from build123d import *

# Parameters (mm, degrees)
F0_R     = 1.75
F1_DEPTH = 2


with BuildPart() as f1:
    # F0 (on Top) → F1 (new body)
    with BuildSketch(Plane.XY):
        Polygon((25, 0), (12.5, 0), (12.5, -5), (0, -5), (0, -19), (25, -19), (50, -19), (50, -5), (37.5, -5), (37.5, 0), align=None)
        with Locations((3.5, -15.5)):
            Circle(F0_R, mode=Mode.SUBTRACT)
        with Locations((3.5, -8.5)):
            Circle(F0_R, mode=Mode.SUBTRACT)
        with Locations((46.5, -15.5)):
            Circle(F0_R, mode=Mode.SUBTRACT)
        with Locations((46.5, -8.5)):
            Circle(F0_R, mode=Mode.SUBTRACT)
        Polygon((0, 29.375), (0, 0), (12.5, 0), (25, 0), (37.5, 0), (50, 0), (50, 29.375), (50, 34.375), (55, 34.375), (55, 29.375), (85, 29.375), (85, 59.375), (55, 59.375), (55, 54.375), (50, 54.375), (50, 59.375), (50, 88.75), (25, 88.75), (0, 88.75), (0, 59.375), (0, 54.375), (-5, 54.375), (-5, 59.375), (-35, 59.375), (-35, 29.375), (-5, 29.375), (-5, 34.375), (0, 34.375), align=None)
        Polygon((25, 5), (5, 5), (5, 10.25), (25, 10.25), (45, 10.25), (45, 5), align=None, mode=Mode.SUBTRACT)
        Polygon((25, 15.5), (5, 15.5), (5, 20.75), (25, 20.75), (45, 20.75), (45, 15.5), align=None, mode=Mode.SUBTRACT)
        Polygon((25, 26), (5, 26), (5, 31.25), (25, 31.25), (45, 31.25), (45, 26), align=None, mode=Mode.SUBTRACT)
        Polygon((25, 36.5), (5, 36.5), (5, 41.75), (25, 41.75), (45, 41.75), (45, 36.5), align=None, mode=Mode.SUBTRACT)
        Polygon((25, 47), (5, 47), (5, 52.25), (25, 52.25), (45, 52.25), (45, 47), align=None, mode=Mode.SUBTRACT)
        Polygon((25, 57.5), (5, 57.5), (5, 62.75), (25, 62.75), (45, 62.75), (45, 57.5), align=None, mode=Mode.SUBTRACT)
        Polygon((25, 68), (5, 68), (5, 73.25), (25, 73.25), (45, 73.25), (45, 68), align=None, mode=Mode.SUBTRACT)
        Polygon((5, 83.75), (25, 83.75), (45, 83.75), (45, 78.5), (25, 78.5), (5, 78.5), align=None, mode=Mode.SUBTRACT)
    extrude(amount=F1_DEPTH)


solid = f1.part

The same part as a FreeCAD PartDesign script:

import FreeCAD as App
import Part
import Sketcher
from FreeCAD import Vector
Q = App.Units.Quantity


def add_polygon(sketch, points):
    """Adds a closed chain of lines whose ends are joined by coincident constraints."""
    first, n = sketch.GeometryCount, len(points)
    for a, b in zip(points, points[1:] + points[:1]):
        sketch.addGeometry(Part.LineSegment(App.Vector(*a, 0), App.Vector(*b, 0)), False)
    for i in range(n):
        sketch.addConstraint(Sketcher.Constraint("Coincident", first + i, 2, first + (i + 1) % n, 1))

doc = App.newDocument("Part")
body = doc.addObject("PartDesign::Body", "Body")

# Sketch on XY plane
sketch1 = doc.addObject("Sketcher::SketchObject", "Sketch")
body.addObject(sketch1)
sketch1.AttachmentSupport = (doc.XY_Plane, [""])
sketch1.MapMode = "FlatFace"
add_polygon(sketch1, [(12.5, 0), (12.5, -5), (0, -5), (0, -19), (50, -19), (50, -5), (37.5, -5), (37.5, 0), (50, 0), (50, 34.4), (55, 34.4), (55, 29.4), (85, 29.4), (85, 59.4), (55, 59.4), (55, 54.4), (50, 54.4), (50, 88.8), (0, 88.8), (0, 54.4), (-5, 54.4), (-5, 59.4), (-35, 59.4), (-35, 29.4), (-5, 29.4), (-5, 34.4), (0, 34.4), (0, 0)])  # lines 0-27
sketch1.addGeometry(Part.Circle(Vector(3.5, -15.5, 0), Vector(0, 0, 1), 1.8), False)  # 28
sketch1.addGeometry(Part.Circle(Vector(3.5, -8.5, 0), Vector(0, 0, 1), 1.8), False)  # 29
add_polygon(sketch1, [(45, 5), (5, 5), (5, 10.2), (45, 10.2)])  # lines 30-33
sketch1.addGeometry(Part.Circle(Vector(46.5, -15.5, 0), Vector(0, 0, 1), 1.8), False)  # 34
sketch1.addGeometry(Part.Circle(Vector(46.5, -8.5, 0), Vector(0, 0, 1), 1.8), False)  # 35
add_polygon(sketch1, [(45, 15.5), (5, 15.5), (5, 20.8), (45, 20.8)])  # lines 36-39
add_polygon(sketch1, [(45, 26), (5, 26), (5, 31.2), (45, 31.2)])  # lines 40-43
add_polygon(sketch1, [(45, 36.5), (5, 36.5), (5, 41.8), (45, 41.8)])  # lines 44-47
add_polygon(sketch1, [(45, 47), (5, 47), (5, 52.2), (45, 52.2)])  # lines 48-51
add_polygon(sketch1, [(45, 57.5), (5, 57.5), (5, 62.8), (45, 62.8)])  # lines 52-55
add_polygon(sketch1, [(45, 68), (5, 68), (5, 73.2), (45, 73.2)])  # lines 56-59
add_polygon(sketch1, [(5, 78.5), (5, 83.8), (45, 83.8), (45, 78.5)])  # lines 60-63
sketch1.addConstraint([
    Sketcher.Constraint("Vertical", 0),
    Sketcher.Constraint("Horizontal", 1),
    Sketcher.Constraint("Vertical", 2),
    Sketcher.Constraint("Horizontal", 3),
    Sketcher.Constraint("Vertical", 4),
    Sketcher.Constraint("Horizontal", 5),
    Sketcher.Constraint("Vertical", 6),
    Sketcher.Constraint("Horizontal", 7),
    Sketcher.Constraint("Vertical", 8),
    Sketcher.Constraint("Horizontal", 9),
    Sketcher.Constraint("Vertical", 10),
    Sketcher.Constraint("Horizontal", 11),
    Sketcher.Constraint("Vertical", 12),
    Sketcher.Constraint("Horizontal", 13),
    Sketcher.Constraint("Vertical", 14),
    Sketcher.Constraint("Horizontal", 15),
    Sketcher.Constraint("Vertical", 16),
    Sketcher.Constraint("Horizontal", 17),
    Sketcher.Constraint("Vertical", 18),
    Sketcher.Constraint("Horizontal", 19),
    Sketcher.Constraint("Vertical", 20),
    Sketcher.Constraint("Horizontal", 21),
    Sketcher.Constraint("Vertical", 22),
    Sketcher.Constraint("Horizontal", 23),
    Sketcher.Constraint("Vertical", 24),
    Sketcher.Constraint("Horizontal", 25),
    Sketcher.Constraint("Vertical", 26),
    Sketcher.Constraint("Horizontal", 27),
    Sketcher.Constraint("Horizontal", 30),
    Sketcher.Constraint("Vertical", 31),
    Sketcher.Constraint("Horizontal", 32),
    Sketcher.Constraint("Vertical", 33),
    Sketcher.Constraint("Horizontal", 36),
    Sketcher.Constraint("Vertical", 37),
    Sketcher.Constraint("Horizontal", 38),
    Sketcher.Constraint("Vertical", 39),
    Sketcher.Constraint("Horizontal", 40),
    Sketcher.Constraint("Vertical", 41),
    Sketcher.Constraint("Horizontal", 42),
    Sketcher.Constraint("Vertical", 43),
    Sketcher.Constraint("Horizontal", 44),
    Sketcher.Constraint("Vertical", 45),
    Sketcher.Constraint("Horizontal", 46),
    Sketcher.Constraint("Vertical", 47),
    Sketcher.Constraint("Horizontal", 48),
    Sketcher.Constraint("Vertical", 49),
    Sketcher.Constraint("Horizontal", 50),
    Sketcher.Constraint("Vertical", 51),
    Sketcher.Constraint("Horizontal", 52),
    Sketcher.Constraint("Vertical", 53),
    Sketcher.Constraint("Horizontal", 54),
    Sketcher.Constraint("Vertical", 55),
    Sketcher.Constraint("Horizontal", 56),
    Sketcher.Constraint("Vertical", 57),
    Sketcher.Constraint("Horizontal", 58),
    Sketcher.Constraint("Vertical", 59),
    Sketcher.Constraint("Vertical", 60),
    Sketcher.Constraint("Horizontal", 61),
    Sketcher.Constraint("Vertical", 62),
    Sketcher.Constraint("Horizontal", 63),
    Sketcher.Constraint("Coincident", 26, 2, -1, 1),
    Sketcher.Constraint("Equal", 28, 29),
    Sketcher.Constraint("Equal", 29, 34),
    Sketcher.Constraint("Equal", 34, 35),
    Sketcher.Constraint("PointOnObject", 1, 2, -2),
    Sketcher.Constraint("PointOnObject", 6, 2, -1),
    Sketcher.Constraint("PointOnObject", 17, 2, -2),
    Sketcher.Constraint("Horizontal", 28, 3, 34, 3),
    Sketcher.Constraint("Horizontal", 29, 3, 35, 3),
    Sketcher.Constraint("Horizontal", 1, 2, 4, 2),
    Sketcher.Constraint("Horizontal", 15, 2, 18, 2),
    Sketcher.Constraint("Horizontal", 13, 2, 20, 2),
    Sketcher.Constraint("Horizontal", 11, 2, 22, 2),
    Sketcher.Constraint("Horizontal", 9, 2, 24, 2),
    Sketcher.Constraint("Vertical", 28, 3, 29, 3),
    Sketcher.Constraint("Vertical", 34, 3, 35, 3),
    Sketcher.Constraint("Vertical", 4, 2, 7, 2),
    Sketcher.Constraint("Vertical", 10, 2, 13, 2),
    Sketcher.Constraint("Vertical", 8, 2, 15, 2),
    Sketcher.Constraint("Vertical", 20, 2, 23, 2),
    Sketcher.Constraint("Vertical", 31, 2, 36, 2),
    Sketcher.Constraint("Vertical", 33, 2, 38, 2),
    Sketcher.Constraint("Vertical", 37, 2, 40, 2),
    Sketcher.Constraint("Vertical", 39, 2, 42, 2),
    Sketcher.Constraint("Vertical", 41, 2, 44, 2),
    Sketcher.Constraint("Vertical", 43, 2, 46, 2),
    Sketcher.Constraint("Vertical", 45, 2, 48, 2),
    Sketcher.Constraint("Vertical", 47, 2, 50, 2),
    Sketcher.Constraint("Vertical", 49, 2, 52, 2),
    Sketcher.Constraint("Vertical", 51, 2, 54, 2),
    Sketcher.Constraint("Vertical", 53, 2, 56, 2),
    Sketcher.Constraint("Vertical", 55, 2, 58, 2),
    Sketcher.Constraint("Vertical", 57, 2, 60, 2),
    Sketcher.Constraint("Vertical", 59, 2, 61, 2),
    Sketcher.Constraint("Equal", 1, 5),
    Sketcher.Constraint("Equal", 15, 19),
    Sketcher.Constraint("Equal", 13, 21),
    Sketcher.Constraint("Equal", 25, 0),
    Sketcher.Constraint("Equal", 6, 10),
    Sketcher.Constraint("Equal", 23, 12),
    Sketcher.Constraint("Equal", 10, 14),
    Sketcher.Constraint("Equal", 8, 16),
    Sketcher.Constraint("Equal", 33, 37),
    Sketcher.Constraint("Equal", 39, 41),
    Sketcher.Constraint("Equal", 43, 45),
    Sketcher.Constraint("Equal", 47, 49),
    Sketcher.Constraint("Equal", 51, 53),
    Sketcher.Constraint("Equal", 55, 57),
    Sketcher.Constraint("Equal", 59, 60),
    Sketcher.Constraint("Diameter", 28, Q("3.5 mm")),
    Sketcher.Constraint("DistanceX", 3, 1, 3, 2, Q("50 mm")),
    Sketcher.Constraint("DistanceX", 9, 1, 9, 2, Q("5 mm")),
    Sketcher.Constraint("DistanceX", 11, 1, 11, 2, Q("30 mm")),
    Sketcher.Constraint("DistanceX", 30, 2, 30, 1, Q("40 mm")),
    Sketcher.Constraint("DistanceY", 2, 2, 2, 1, Q("14 mm")),
    Sketcher.Constraint("DistanceX", 1, 2, 1, 1, Q("12.5 mm")),
    Sketcher.Constraint("DistanceX", -1, 1, 30, 2, Q("5 mm")),
    Sketcher.Constraint("DistanceY", -1, 1, 30, 2, Q("5 mm")),
    Sketcher.Constraint("DistanceY", -1, 1, 40, 2, Q("26 mm")),
    Sketcher.Constraint("DistanceY", -1, 1, 48, 2, Q("47 mm")),
    Sketcher.Constraint("DistanceY", -1, 1, 56, 2, Q("68 mm")),
    Sketcher.Constraint("DistanceY", 31, 1, 31, 2, Q("5.25 mm")),
    Sketcher.Constraint("DistanceX", -1, 1, 28, 3, Q("3.5 mm")),
    Sketcher.Constraint("DistanceY", 28, 3, -1, 1, Q("15.5 mm")),
    Sketcher.Constraint("DistanceY", 29, 3, -1, 1, Q("8.5 mm")),
    Sketcher.Constraint("DistanceX", -1, 1, 34, 3, Q("46.5 mm")),
    Sketcher.Constraint("DistanceY", -1, 1, 36, 2, Q("15.5 mm")),
    Sketcher.Constraint("DistanceY", -1, 1, 44, 2, Q("36.5 mm")),
    Sketcher.Constraint("DistanceY", -1, 1, 52, 2, Q("57.5 mm")),
    Sketcher.Constraint("DistanceY", -1, 1, 62, 2, Q("78.5 mm")),
    Sketcher.Constraint("DistanceY", 8, 1, 8, 2, Q("34.375 mm")),
])
pad1 = doc.addObject("PartDesign::Pad", "Pad")
body.addObject(pad1)
pad1.Profile = sketch1
pad1.Length = 2

doc.recompute()
